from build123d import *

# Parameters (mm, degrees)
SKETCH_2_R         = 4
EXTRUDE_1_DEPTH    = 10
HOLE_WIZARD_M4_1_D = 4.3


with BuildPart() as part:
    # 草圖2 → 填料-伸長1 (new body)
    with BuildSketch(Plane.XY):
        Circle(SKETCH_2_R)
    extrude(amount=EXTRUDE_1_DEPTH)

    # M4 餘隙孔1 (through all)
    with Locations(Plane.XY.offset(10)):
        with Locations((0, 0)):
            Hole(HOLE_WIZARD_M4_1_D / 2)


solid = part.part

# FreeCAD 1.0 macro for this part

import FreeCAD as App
import Part
import Sketcher

V = App.Vector

doc = App.newDocument("Part")
body = doc.addObject("PartDesign::Body", "Body")

# Sketch on XY plane
sketch1 = body.newObject("Sketcher::SketchObject", "Sketch")
sketch1.AttachmentSupport = (doc.getObject("XY_Plane"), [""])
sketch1.MapMode = "FlatFace"
sketch1.addGeometry(Part.Circle(V(0, 0, 0), V(0, 0, 1), 4), False)
sketch1.addConstraint([
    Sketcher.Constraint("Coincident", 0, 3, -1, 1),
    Sketcher.Constraint("Diameter", 0, 8.0),
])
pad1 = body.newObject("PartDesign::Pad", "Pad")
pad1.Profile = sketch1
pad1.Length = 10

# Sketch on XY plane
sketch2 = body.newObject("Sketcher::SketchObject", "Sketch001")
sketch2.AttachmentSupport = (doc.getObject("XY_Plane"), [""])
sketch2.MapMode = "FlatFace"
sketch2.AttachmentOffset = App.Placement(V(0, 0, 10), App.Rotation())
sketch2.addGeometry(Part.Circle(V(0, 0, 0), V(0, 0, 1), 2.1), False)
sketch2.addConstraint([
    Sketcher.Constraint("Coincident", 0, 3, -1, 1),
    Sketcher.Constraint("Diameter", 0, 4.3),
])
doc.recompute()
hole = body.newObject("PartDesign::Hole", "Hole")
hole.Profile = sketch2
hole.ThreadType = "None"
hole.Diameter = 4.3
hole.DepthType = "ThroughAll"

doc.recompute()
